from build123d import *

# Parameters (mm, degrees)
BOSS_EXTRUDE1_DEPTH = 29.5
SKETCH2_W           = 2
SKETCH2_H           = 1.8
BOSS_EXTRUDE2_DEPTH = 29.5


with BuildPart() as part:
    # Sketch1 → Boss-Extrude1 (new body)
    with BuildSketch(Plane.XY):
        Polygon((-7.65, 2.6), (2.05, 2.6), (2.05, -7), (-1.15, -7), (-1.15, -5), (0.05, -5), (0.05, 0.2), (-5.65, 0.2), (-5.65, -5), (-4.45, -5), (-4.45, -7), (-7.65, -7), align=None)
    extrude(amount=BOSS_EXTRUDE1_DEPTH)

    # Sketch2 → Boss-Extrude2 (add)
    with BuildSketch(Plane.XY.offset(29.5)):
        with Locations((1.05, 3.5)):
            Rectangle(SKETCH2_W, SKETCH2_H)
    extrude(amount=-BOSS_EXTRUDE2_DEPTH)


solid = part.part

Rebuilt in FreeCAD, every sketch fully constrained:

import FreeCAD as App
import Part
import Sketcher
Q = App.Units.Quantity


def add_polygon(sketch, points):
    """Adds a closed chain of lines whose ends are joined by coincident constraints."""
    first, n = sketch.GeometryCount, len(points)
    for a, b in zip(points, points[1:] + points[:1]):
        sketch.addGeometry(Part.LineSegment(App.Vector(*a, 0), App.Vector(*b, 0)), False)
    for i in range(n):
        sketch.addConstraint(Sketcher.Constraint("Coincident", first + i, 2, first + (i + 1) % n, 1))

doc = App.newDocument("Part")
params = doc.addObject("Spreadsheet::Sheet", "Params")
for row, (alias, value) in enumerate([
    ("sketch1_height", "2 mm"),
    ("sketch1_width", "9.7 mm"),
    ("sketch1_width2", "3.2 mm"),
    ("sketch1_width3", "1.2 mm"),
    ("sketch1_height2", "9.6 mm"),
    ("pad1_length", "29.5 mm"),
    ("sketch2_width", "2 mm"),
    ("sketch2_height", "1.8 mm"),
    ("pad2_length", "29.5 mm"),
], start=1):
    params.set(f"A{row}", alias)
    params.set(f"B{row}", "=" + value)
    params.setAlias(f"B{row}", alias)

body = doc.addObject("PartDesign::Body", "Body")

# Sketch on XY plane
sketch1 = doc.addObject("Sketcher::SketchObject", "Sketch")
body.addObject(sketch1)
sketch1.AttachmentSupport = (doc.XY_Plane, [""])
sketch1.MapMode = "FlatFace"
add_polygon(sketch1, [(2, 2.6), (-7.7, 2.6), (-7.7, -7), (-4.5, -7), (-4.5, -5), (-5.7, -5), (-5.7, 0.2), (0.1, 0.2), (0.1, -5), (-1.1, -5), (-1.1, -7), (2, -7)])  # lines 0-11
sketch1.addConstraint([
    Sketcher.Constraint("Horizontal", 0),
    Sketcher.Constraint("Vertical", 1),
    Sketcher.Constraint("Horizontal", 2),
    Sketcher.Constraint("Vertical", 3),
    Sketcher.Constraint("Horizontal", 4),
    Sketcher.Constraint("Vertical", 5),
    Sketcher.Constraint("Horizontal", 6),
    Sketcher.Constraint("Vertical", 7),
    Sketcher.Constraint("Horizontal", 8),
    Sketcher.Constraint("Vertical", 9),
    Sketcher.Constraint("Horizontal", 10),
    Sketcher.Constraint("Vertical", 11),
    Sketcher.Constraint("Horizontal", 4, 2, 7, 2),
    Sketcher.Constraint("Horizontal", 2, 2, 9, 2),
    Sketcher.Constraint("Equal", 4, 8),
    Sketcher.Constraint("Equal", 2, 10),
    Sketcher.Constraint("DistanceY", 3, 1, 3, 2, Q("2 mm")),
    Sketcher.Constraint("DistanceX", 0, 2, 0, 1, Q("9.7 mm")),
    Sketcher.Constraint("DistanceX", 2, 1, 2, 2, Q("3.2 mm")),
    Sketcher.Constraint("DistanceX", 4, 2, 4, 1, Q("1.2 mm")),
    Sketcher.Constraint("DistanceY", 1, 2, 1, 1, Q("9.6 mm")),
    Sketcher.Constraint("DistanceY", 5, 1, 5, 2, Q("5.2 mm")),
    Sketcher.Constraint("DistanceY", 1, 2, -1, 1, Q("7 mm")),
    Sketcher.Constraint("DistanceX", 0, 2, -1, 1, Q("7.65 mm")),
])
sketch1.setExpression("Constraints[28]", "Params.sketch1_height")
sketch1.setExpression("Constraints[29]", "Params.sketch1_width")
sketch1.setExpression("Constraints[30]", "Params.sketch1_width2")
sketch1.setExpression("Constraints[31]", "Params.sketch1_width3")
sketch1.setExpression("Constraints[32]", "Params.sketch1_height2")
pad1 = doc.addObject("PartDesign::Pad", "Pad")
body.addObject(pad1)
pad1.Profile = sketch1
pad1.setExpression("Length", "Params.pad1_length")

# Sketch on XY plane
sketch2 = doc.addObject("Sketcher::SketchObject", "Sketch001")
body.addObject(sketch2)
sketch2.AttachmentSupport = (doc.XY_Plane, [""])
sketch2.MapMode = "FlatFace"
sketch2.AttachmentOffset = App.Placement(App.Vector(0, 0, 29.5), App.Rotation())
add_polygon(sketch2, [(0.1, 4.4), (0.1, 2.6), (2, 2.6), (2, 4.4)])  # lines 0-3
sketch2.addConstraint([
    Sketcher.Constraint("Vertical", 0),
    Sketcher.Constraint("Horizontal", 1),
    Sketcher.Constraint("Vertical", 2),
    Sketcher.Constraint("Horizontal", 3),
    Sketcher.Constraint("DistanceX", 1, 1, 1, 2, Q("2 mm")),
    Sketcher.Constraint("DistanceY", 0, 2, 0, 1, Q("1.8 mm")),
    Sketcher.Constraint("DistanceY", -1, 1, 0, 2, Q("2.6 mm")),
    Sketcher.Constraint("DistanceX", -1, 1, 0, 2, Q("0.05 mm")),
])
sketch2.setExpression("Constraints[8]", "Params.sketch2_width")
sketch2.setExpression("Constraints[9]", "Params.sketch2_height")
pad2 = doc.addObject("PartDesign::Pad", "Pad001")
body.addObject(pad2)
pad2.Profile = sketch2
pad2.setExpression("Length", "Params.pad2_length")
pad2.Reversed = True

doc.recompute()
